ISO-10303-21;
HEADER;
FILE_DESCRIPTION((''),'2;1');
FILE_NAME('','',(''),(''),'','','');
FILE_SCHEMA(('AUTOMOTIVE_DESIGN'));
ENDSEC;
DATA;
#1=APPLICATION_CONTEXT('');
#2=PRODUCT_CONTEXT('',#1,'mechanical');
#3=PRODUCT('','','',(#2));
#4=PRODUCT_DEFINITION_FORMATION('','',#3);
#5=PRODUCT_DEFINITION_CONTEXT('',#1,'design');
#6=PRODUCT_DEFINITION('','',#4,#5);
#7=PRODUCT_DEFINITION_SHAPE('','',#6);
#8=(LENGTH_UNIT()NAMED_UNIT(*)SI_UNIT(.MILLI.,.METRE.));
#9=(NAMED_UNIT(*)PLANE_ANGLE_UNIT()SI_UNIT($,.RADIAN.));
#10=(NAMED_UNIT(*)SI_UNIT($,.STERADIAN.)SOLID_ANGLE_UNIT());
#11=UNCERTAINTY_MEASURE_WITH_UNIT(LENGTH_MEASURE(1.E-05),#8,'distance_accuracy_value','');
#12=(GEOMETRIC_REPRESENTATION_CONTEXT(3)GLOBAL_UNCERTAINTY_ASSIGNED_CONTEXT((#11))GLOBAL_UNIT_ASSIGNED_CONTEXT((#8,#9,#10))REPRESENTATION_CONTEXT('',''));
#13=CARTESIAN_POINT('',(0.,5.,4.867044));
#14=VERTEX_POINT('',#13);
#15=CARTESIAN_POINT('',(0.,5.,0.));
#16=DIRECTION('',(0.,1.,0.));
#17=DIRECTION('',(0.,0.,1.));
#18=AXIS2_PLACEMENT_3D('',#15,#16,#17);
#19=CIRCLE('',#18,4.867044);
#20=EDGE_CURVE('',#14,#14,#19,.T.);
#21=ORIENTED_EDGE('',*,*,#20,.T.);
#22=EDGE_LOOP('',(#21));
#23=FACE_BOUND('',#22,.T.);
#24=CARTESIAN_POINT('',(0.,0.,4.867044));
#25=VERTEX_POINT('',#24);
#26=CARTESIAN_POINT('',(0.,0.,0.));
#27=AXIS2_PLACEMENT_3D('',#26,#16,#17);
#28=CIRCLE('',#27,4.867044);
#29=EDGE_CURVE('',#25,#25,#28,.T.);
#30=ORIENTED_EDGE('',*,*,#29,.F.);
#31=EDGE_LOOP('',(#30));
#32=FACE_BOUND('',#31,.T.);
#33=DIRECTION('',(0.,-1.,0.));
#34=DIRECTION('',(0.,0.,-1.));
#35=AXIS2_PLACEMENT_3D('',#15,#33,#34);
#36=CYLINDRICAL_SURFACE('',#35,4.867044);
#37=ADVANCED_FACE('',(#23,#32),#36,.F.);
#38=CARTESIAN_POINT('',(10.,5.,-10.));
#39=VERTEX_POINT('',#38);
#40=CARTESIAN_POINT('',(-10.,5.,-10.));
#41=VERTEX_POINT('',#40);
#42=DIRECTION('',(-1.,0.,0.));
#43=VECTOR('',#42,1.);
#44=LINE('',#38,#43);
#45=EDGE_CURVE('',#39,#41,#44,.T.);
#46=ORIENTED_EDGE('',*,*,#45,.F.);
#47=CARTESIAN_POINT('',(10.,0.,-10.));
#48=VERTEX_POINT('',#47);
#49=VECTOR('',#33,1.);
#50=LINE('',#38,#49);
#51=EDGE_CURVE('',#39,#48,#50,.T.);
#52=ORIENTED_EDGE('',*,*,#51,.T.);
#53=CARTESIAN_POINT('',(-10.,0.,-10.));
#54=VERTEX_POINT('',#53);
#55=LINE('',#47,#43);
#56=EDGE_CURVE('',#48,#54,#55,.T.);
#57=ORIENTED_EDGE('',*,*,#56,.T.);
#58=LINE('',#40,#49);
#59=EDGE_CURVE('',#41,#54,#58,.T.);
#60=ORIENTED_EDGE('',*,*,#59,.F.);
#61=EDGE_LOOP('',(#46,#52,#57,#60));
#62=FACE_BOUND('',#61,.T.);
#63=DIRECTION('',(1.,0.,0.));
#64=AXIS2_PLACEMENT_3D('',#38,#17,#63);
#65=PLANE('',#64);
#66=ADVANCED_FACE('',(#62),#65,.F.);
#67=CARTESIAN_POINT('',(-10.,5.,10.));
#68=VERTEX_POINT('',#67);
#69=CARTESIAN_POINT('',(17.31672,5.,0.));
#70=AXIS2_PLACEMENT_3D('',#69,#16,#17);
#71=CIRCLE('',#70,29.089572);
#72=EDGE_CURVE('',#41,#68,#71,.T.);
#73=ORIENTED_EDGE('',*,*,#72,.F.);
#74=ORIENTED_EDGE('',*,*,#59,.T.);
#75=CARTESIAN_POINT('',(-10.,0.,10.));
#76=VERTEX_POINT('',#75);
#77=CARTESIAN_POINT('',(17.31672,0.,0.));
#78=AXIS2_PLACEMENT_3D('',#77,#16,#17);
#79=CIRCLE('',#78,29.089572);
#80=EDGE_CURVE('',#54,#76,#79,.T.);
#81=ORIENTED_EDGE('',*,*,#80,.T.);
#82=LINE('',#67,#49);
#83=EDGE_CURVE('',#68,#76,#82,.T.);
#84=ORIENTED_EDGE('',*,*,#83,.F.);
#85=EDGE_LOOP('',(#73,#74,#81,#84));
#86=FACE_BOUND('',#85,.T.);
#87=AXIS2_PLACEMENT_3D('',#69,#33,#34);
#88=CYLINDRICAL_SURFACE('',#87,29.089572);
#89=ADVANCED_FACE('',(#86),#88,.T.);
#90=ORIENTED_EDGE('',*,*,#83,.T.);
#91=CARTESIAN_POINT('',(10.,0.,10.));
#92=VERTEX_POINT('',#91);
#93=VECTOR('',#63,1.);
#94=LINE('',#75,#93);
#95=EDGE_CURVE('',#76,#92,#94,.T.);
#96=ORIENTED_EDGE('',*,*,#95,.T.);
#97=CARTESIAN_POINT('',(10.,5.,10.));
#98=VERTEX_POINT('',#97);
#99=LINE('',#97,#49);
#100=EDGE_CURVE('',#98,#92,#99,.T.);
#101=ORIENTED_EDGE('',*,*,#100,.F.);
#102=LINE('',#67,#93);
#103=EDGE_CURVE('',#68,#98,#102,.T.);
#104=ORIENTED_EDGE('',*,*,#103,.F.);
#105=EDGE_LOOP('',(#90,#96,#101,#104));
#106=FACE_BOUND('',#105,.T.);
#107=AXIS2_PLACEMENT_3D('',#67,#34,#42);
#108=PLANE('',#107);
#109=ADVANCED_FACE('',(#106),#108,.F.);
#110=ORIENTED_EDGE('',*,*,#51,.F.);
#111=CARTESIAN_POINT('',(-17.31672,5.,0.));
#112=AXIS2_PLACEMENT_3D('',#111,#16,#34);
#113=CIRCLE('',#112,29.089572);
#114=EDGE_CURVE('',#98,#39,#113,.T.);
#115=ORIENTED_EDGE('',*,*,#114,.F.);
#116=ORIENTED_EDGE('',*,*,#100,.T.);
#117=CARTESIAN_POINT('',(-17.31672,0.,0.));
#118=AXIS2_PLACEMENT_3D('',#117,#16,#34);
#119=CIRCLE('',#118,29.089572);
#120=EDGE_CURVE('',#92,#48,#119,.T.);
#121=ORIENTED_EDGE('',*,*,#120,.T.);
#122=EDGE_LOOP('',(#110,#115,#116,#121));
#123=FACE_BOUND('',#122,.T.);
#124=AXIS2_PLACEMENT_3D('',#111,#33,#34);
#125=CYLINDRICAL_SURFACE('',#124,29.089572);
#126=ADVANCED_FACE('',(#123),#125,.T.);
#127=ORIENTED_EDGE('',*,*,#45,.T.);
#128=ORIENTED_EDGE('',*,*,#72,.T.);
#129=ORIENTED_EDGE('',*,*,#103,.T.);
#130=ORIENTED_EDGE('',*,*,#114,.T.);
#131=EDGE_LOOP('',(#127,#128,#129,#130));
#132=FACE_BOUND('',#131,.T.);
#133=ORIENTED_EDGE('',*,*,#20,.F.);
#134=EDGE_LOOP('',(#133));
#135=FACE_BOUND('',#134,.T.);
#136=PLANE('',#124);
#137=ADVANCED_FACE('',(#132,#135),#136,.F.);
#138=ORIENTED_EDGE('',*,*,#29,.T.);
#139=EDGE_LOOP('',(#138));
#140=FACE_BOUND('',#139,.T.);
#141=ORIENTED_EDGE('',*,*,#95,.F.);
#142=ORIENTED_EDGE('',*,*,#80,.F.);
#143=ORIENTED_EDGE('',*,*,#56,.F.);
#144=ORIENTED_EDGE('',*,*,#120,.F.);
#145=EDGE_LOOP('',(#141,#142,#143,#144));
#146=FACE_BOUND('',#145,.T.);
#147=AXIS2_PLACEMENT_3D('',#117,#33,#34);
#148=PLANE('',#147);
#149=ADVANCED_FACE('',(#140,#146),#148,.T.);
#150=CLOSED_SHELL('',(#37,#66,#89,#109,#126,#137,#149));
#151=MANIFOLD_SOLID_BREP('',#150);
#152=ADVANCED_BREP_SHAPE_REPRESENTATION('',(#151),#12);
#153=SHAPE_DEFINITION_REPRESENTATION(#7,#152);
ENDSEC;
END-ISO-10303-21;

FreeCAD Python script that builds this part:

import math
import FreeCAD as App
import Part
import Sketcher
Q = App.Units.Quantity

doc = App.newDocument("Part")
body = doc.addObject("PartDesign::Body", "Body")

# Sketch on XZ plane
sketch1 = body.newObject("Sketcher::SketchObject", "Sketch")
sketch1.AttachmentSupport = (doc.getObject("XZ_Plane"), [""])
sketch1.MapMode = "FlatFace"
sketch1.addGeometry([
    Part.LineSegment(App.Vector(-10, 10, 0), App.Vector(10, 10, 0)),  # 0
    Part.ArcOfCircle(Part.Circle(App.Vector(-17.3, 0, 0), App.Vector(0, 0, 1), 29.1), math.radians(-20), math.radians(20)),  # 1
    Part.LineSegment(App.Vector(10, -10, 0), App.Vector(-10, -10, 0)),  # 2
    Part.ArcOfCircle(Part.Circle(App.Vector(17.3, 0, 0), App.Vector(0, 0, 1), 29.1), math.radians(160), math.radians(200)),  # 3
    Part.Circle(App.Vector(0, 0, 0), App.Vector(0, 0, 1), 4.9),  # 4
], False)
sketch1.addConstraint([
    Sketcher.Constraint("Coincident", 0, 2, 1, 2),
    Sketcher.Constraint("Coincident", 1, 1, 2, 1),
    Sketcher.Constraint("Coincident", 2, 2, 3, 2),
    Sketcher.Constraint("Coincident", 3, 1, 0, 1),
    Sketcher.Constraint("Horizontal", 0),
    Sketcher.Constraint("Horizontal", 2),
    Sketcher.Constraint("Coincident", 4, 3, -1, 1),
    Sketcher.Constraint("Equal", 1, 3),
    Sketcher.Constraint("Symmetric", 1, 3, 3, 3, -1, 1),
    Sketcher.Constraint("Symmetric", 0, 2, 1, 1, -1),
    Sketcher.Constraint("DistanceX", 0, 1, 0, 2, Q("20 mm")),
    Sketcher.Constraint("DistanceY", -1, 1, 0, 2, Q("10 mm")),
    Sketcher.Constraint("Diameter", 4, Q("9.734088 mm")),
    Sketcher.Constraint("Radius", 1, Q("29.089572 mm")),
])
pad1 = body.newObject("PartDesign::Pad", "Pad")
pad1.Profile = sketch1
pad1.Length = 5
pad1.Reversed = True

doc.recompute()
